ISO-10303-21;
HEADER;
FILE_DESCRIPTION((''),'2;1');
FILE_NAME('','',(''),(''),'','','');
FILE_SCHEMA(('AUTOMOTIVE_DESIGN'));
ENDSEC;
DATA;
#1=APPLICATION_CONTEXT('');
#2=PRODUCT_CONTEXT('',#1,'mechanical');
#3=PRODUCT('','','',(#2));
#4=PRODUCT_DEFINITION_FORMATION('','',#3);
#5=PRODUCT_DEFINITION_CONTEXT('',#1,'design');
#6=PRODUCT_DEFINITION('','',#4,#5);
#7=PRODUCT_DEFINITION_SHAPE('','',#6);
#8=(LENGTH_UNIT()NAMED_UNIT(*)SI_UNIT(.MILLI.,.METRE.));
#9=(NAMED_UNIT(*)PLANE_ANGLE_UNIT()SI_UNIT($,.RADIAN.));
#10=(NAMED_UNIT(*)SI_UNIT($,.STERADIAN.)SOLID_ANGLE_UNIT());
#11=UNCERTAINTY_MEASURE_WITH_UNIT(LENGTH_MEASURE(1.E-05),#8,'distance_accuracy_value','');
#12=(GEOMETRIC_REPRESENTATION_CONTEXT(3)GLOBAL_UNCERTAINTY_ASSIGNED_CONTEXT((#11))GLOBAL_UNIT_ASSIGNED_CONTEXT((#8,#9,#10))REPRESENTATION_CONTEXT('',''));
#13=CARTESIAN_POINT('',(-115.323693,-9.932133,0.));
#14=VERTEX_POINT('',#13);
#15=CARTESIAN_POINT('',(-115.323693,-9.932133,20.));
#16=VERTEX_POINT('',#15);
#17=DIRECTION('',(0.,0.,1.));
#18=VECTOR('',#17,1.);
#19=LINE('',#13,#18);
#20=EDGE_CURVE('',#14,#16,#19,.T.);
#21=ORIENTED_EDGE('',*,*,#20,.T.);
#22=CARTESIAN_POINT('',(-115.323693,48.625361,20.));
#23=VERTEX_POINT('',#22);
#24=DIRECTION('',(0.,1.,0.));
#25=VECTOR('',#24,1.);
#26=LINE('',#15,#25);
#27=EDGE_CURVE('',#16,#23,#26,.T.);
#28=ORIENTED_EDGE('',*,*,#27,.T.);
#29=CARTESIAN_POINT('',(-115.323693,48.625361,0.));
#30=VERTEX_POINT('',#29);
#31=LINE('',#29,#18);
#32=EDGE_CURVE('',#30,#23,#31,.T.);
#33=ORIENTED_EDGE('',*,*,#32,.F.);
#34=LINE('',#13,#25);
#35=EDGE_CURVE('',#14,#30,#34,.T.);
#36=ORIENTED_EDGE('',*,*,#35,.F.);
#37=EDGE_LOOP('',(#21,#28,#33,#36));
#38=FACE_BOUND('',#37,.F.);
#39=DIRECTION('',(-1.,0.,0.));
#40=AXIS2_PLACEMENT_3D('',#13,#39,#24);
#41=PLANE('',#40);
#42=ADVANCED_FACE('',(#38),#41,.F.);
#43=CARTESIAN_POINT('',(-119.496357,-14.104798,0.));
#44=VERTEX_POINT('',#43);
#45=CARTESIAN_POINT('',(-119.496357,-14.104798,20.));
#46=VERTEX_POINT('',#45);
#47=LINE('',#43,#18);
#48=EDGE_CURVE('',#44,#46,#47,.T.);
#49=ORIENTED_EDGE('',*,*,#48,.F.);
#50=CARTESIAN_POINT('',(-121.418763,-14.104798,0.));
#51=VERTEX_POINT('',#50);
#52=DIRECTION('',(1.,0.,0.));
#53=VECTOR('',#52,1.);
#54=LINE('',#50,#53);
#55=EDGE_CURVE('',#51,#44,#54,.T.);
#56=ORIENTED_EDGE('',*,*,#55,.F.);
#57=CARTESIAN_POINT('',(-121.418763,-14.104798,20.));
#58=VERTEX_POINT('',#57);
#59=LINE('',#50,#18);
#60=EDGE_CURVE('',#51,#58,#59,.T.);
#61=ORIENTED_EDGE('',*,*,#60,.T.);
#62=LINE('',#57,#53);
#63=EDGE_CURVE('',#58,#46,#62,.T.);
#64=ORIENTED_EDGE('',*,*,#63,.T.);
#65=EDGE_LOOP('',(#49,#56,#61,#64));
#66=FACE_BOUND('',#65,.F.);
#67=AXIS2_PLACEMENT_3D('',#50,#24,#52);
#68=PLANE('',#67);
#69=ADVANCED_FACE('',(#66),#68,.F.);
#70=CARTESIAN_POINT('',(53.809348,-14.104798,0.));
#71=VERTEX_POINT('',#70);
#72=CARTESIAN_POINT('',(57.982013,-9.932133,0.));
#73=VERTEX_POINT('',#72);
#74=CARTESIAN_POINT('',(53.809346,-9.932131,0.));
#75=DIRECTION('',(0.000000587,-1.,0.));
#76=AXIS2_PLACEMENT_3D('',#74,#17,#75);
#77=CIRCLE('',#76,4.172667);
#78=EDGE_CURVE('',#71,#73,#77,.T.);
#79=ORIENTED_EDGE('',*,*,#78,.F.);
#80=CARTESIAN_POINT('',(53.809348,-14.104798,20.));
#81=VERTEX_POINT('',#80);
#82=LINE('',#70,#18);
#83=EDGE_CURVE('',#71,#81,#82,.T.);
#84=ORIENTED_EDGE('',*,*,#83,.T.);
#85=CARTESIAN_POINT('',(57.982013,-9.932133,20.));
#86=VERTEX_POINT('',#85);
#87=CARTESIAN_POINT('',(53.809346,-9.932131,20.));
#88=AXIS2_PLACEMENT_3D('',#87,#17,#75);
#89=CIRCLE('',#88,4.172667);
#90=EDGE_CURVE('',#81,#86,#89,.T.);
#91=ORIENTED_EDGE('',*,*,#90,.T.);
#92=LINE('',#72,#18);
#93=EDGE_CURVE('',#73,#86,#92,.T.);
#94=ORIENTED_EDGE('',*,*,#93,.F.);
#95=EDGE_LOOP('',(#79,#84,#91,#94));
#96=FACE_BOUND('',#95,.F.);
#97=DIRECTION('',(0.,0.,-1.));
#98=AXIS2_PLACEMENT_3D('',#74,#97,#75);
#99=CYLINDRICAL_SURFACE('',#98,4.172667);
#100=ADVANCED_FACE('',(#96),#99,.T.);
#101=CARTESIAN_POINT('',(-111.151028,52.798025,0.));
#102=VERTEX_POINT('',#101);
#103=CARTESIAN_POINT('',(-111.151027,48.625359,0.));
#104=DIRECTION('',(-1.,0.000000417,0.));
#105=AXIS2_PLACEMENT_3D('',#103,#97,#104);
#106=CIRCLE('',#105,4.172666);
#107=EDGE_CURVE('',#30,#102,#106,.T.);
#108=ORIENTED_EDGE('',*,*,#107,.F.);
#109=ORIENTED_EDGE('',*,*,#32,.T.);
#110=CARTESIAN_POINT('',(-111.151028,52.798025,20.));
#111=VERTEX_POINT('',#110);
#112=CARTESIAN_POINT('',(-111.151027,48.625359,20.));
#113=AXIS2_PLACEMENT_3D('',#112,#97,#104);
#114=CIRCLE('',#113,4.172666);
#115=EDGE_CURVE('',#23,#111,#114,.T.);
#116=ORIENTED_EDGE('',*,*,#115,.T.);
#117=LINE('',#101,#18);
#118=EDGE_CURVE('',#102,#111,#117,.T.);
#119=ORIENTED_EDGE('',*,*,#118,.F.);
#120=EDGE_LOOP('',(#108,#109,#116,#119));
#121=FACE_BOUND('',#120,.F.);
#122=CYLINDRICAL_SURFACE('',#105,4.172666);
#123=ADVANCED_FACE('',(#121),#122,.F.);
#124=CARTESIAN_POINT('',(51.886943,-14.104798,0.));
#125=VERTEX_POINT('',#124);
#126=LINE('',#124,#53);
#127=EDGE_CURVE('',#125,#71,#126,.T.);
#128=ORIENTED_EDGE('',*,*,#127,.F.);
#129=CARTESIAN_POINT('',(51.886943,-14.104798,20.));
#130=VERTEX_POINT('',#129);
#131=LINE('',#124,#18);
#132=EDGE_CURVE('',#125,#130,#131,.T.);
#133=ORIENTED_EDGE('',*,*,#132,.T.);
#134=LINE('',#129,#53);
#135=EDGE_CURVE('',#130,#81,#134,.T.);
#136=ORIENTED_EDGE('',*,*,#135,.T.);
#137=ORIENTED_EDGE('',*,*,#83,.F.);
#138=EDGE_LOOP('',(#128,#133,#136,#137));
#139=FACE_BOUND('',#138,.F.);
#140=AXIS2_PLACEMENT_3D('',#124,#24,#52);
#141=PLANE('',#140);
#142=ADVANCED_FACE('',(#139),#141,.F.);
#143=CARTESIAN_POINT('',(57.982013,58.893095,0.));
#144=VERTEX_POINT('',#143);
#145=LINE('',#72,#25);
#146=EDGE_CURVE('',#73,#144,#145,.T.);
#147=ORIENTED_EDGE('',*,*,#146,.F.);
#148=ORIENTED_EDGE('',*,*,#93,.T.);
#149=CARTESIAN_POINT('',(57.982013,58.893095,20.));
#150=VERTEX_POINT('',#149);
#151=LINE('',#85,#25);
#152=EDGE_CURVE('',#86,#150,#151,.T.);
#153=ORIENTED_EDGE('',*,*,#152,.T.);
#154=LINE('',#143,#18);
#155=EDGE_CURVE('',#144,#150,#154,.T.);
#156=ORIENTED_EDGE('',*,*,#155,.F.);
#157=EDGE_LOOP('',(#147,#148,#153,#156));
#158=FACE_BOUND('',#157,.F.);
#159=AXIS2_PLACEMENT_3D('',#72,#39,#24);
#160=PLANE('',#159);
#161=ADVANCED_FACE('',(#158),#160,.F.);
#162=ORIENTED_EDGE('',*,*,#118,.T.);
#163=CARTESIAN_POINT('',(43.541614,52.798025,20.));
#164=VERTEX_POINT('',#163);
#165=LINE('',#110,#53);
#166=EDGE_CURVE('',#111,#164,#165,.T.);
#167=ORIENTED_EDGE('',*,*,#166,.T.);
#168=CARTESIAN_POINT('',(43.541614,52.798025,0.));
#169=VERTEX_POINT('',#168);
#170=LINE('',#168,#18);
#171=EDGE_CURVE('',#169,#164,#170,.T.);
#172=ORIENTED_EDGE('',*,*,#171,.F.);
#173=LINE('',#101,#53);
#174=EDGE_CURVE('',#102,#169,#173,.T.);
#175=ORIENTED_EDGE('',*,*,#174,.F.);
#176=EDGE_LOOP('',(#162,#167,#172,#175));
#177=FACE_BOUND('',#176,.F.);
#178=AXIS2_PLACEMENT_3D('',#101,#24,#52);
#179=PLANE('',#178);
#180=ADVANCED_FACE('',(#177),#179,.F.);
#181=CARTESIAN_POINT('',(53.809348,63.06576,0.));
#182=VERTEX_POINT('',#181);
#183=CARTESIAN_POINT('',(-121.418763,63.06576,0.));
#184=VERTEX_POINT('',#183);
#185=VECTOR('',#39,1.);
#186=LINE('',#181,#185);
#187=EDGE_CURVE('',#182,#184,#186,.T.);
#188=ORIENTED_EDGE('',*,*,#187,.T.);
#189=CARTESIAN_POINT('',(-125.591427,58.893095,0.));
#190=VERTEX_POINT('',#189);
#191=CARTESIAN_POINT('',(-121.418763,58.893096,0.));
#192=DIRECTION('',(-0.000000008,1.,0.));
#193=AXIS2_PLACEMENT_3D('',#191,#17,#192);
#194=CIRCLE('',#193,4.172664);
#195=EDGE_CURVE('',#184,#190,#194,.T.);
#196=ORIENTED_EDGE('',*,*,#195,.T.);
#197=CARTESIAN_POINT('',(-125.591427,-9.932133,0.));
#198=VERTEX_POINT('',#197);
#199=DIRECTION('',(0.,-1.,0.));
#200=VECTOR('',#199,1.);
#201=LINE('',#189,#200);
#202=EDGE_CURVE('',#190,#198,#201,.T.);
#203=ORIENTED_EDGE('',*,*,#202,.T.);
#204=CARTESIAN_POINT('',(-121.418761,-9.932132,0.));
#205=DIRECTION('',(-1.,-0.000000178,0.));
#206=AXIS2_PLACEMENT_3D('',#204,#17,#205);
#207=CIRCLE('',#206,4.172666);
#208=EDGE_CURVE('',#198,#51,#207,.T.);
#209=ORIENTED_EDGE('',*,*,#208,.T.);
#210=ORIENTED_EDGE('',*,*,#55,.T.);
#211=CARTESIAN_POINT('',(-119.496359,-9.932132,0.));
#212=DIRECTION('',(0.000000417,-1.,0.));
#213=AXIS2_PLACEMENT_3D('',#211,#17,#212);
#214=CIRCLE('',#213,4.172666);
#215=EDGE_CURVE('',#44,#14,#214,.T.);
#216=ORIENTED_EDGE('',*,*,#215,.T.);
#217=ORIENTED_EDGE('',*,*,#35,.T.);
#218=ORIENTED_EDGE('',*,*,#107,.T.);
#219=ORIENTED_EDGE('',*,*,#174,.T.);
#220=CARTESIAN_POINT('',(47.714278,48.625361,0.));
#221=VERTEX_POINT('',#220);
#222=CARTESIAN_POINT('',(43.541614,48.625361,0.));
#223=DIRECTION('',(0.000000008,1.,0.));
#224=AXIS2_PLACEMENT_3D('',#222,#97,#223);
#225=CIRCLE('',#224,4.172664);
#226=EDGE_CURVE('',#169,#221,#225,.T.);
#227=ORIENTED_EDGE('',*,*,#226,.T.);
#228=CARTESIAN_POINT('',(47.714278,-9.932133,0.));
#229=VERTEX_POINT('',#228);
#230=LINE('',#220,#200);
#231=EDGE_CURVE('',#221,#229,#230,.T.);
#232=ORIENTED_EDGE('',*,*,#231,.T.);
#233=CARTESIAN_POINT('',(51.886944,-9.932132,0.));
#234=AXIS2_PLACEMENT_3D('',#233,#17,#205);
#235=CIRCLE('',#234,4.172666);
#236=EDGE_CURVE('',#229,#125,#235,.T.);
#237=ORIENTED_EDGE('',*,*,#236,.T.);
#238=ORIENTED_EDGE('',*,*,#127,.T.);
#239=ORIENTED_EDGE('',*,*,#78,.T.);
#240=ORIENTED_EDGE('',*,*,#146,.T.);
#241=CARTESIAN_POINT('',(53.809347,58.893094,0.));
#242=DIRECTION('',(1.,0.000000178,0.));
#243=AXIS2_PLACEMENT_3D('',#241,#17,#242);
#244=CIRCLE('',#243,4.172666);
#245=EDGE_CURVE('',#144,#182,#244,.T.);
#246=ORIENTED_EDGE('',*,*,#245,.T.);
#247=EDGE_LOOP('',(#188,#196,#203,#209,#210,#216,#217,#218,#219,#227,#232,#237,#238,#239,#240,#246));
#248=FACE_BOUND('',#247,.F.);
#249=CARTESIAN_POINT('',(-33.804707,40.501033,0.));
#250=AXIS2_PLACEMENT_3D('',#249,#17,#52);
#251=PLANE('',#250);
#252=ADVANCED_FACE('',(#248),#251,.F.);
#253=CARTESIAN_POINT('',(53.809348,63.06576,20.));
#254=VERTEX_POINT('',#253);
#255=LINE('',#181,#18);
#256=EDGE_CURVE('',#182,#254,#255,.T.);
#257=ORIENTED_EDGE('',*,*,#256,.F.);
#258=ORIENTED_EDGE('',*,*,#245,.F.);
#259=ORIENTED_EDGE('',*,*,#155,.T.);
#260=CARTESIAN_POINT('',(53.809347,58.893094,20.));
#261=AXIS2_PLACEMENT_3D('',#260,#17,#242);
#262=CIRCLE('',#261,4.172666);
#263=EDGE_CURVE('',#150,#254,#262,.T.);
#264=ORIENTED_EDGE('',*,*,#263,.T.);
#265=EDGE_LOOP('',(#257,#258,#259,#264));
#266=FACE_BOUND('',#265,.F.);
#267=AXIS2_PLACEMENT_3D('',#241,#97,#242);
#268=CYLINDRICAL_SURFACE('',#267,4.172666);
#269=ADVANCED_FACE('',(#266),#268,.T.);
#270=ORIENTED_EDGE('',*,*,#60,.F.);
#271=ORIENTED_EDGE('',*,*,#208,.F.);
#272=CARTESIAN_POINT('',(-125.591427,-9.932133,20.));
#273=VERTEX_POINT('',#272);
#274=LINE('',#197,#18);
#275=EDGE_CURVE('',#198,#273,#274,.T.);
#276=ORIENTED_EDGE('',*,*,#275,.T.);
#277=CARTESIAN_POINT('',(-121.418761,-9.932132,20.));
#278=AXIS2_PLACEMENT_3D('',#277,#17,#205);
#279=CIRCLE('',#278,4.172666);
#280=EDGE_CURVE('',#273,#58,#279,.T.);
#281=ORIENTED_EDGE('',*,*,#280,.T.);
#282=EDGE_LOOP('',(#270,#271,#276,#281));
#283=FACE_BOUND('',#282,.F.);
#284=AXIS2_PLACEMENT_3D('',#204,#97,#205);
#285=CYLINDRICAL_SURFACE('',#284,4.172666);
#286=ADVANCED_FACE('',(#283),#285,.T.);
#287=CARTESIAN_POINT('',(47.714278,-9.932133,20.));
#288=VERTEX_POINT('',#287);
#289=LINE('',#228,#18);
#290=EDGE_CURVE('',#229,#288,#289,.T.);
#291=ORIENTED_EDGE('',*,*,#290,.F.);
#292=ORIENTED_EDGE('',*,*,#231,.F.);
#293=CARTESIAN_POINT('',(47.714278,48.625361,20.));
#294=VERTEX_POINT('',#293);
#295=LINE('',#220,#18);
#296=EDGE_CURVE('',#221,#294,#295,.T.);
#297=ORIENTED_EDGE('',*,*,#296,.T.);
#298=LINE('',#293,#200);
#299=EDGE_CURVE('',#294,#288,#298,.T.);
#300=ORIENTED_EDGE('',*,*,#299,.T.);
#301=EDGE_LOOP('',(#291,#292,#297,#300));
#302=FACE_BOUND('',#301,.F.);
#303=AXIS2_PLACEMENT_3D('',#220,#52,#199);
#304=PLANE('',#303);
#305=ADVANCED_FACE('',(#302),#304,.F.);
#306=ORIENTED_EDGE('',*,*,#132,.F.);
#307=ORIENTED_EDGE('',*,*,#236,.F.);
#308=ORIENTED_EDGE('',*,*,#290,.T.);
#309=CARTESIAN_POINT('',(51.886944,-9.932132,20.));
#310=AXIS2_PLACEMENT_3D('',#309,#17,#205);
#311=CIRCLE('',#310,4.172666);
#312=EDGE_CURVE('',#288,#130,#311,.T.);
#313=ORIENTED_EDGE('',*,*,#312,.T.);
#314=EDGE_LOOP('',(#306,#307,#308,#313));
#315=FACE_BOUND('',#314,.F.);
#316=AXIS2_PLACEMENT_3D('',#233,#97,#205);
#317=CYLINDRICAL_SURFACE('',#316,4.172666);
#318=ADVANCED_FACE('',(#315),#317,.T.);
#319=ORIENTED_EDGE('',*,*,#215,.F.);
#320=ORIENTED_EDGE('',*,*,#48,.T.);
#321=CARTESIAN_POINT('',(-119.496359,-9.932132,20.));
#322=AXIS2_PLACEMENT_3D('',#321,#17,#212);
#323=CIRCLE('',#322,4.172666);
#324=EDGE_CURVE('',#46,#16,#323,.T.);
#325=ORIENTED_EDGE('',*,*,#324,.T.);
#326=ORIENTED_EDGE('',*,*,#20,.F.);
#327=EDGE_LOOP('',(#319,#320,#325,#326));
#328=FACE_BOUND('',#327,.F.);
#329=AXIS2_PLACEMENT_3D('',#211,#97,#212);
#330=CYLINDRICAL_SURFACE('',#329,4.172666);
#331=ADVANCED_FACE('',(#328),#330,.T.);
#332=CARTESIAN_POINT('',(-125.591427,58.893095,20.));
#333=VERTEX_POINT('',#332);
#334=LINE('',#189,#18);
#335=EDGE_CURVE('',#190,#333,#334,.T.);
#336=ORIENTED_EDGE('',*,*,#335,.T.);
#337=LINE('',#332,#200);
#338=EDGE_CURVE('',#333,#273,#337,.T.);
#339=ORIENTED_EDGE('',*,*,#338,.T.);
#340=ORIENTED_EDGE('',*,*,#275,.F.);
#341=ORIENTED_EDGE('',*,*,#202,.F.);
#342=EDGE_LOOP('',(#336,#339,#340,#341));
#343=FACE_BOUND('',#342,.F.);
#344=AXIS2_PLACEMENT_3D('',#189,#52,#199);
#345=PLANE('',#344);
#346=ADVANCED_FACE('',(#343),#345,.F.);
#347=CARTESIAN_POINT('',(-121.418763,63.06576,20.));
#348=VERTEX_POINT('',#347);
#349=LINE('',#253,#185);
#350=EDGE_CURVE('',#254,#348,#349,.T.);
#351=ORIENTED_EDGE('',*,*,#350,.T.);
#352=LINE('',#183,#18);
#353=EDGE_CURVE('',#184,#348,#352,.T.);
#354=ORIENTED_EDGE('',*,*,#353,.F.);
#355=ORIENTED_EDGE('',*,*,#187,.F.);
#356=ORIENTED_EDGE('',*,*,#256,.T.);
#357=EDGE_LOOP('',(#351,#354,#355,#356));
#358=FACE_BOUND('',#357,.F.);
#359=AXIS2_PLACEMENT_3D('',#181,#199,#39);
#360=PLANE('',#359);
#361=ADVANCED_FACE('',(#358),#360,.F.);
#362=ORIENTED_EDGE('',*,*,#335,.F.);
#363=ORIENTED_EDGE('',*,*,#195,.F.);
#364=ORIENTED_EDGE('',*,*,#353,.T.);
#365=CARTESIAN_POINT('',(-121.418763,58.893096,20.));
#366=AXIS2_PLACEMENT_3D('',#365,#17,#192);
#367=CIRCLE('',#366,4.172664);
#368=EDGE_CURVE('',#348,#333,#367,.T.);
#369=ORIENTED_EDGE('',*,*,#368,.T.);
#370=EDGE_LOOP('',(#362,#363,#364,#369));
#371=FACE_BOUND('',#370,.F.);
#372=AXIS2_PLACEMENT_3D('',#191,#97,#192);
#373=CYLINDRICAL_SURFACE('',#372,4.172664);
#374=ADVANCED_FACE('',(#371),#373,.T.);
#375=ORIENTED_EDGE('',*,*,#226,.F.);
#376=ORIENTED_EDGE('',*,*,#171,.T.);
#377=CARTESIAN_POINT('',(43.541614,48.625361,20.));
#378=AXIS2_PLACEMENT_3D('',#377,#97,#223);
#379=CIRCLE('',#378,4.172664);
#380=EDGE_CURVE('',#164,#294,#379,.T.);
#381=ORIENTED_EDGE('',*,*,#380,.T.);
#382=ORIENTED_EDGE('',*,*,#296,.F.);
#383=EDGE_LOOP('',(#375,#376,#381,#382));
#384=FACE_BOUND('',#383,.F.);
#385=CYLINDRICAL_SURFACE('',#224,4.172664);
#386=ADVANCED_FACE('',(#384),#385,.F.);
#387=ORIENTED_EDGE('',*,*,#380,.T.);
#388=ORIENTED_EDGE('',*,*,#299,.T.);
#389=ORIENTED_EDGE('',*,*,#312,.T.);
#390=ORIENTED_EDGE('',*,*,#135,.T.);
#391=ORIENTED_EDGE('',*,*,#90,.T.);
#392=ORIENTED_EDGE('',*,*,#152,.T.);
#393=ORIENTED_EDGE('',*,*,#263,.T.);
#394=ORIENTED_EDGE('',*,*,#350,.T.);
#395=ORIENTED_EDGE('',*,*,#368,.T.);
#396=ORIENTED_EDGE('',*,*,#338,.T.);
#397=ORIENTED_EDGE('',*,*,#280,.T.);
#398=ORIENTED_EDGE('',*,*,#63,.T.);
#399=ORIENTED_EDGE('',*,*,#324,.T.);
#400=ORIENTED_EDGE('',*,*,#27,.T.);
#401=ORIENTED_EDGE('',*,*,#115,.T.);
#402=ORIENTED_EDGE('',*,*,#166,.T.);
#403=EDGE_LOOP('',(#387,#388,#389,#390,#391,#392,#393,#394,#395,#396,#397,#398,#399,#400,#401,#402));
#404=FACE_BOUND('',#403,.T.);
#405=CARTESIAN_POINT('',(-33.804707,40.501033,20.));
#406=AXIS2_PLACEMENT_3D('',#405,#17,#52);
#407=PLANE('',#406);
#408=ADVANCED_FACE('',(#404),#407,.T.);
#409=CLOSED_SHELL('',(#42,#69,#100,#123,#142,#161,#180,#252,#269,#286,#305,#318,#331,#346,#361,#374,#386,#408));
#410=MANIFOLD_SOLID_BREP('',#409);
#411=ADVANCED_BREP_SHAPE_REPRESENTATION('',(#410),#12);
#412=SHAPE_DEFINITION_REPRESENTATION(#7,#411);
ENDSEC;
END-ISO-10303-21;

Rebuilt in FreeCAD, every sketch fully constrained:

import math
import FreeCAD as App
import Part
import Sketcher
Q = App.Units.Quantity

doc = App.newDocument("Part")
params = doc.addObject("Spreadsheet::Sheet", "Params")
for row, (alias, value) in enumerate([
    ("pad1_length", "20 mm"),
], start=1):
    params.set(f"A{row}", alias)
    params.set(f"B{row}", "=" + value)
    params.setAlias(f"B{row}", alias)

body = doc.addObject("PartDesign::Body", "Body")

# Sketch on XY plane
sketch1 = doc.addObject("Sketcher::SketchObject", "Sketch")
body.addObject(sketch1)
sketch1.AttachmentSupport = (doc.XY_Plane, [""])
sketch1.MapMode = "FlatFace"
sketch1.addGeometry(Part.ArcOfCircle(Part.Circle(App.Vector(-111.151027, 48.625359, 0), App.Vector(0, 0, 1), 4.172666), math.radians(90.00001), math.radians(179.999976)), False)
sketch1.addGeometry(Part.LineSegment(App.Vector(-111.151028, 52.798025, 0), App.Vector(43.541614, 52.798025, 0)), False)
sketch1.addGeometry(Part.ArcOfCircle(Part.Circle(App.Vector(43.541614, 48.625361, 0), App.Vector(0, 0, 1), 4.172664), math.radians(0), math.radians(90)), False)
sketch1.addGeometry(Part.LineSegment(App.Vector(47.714278, 48.625361, 0), App.Vector(47.714278, -9.932133, 0)), False)
sketch1.addGeometry(Part.ArcOfCircle(Part.Circle(App.Vector(51.886944, -9.932132, 0), App.Vector(0, 0, 1), 4.172666), math.radians(-179.99999), math.radians(-90.00001)), False)
sketch1.addGeometry(Part.LineSegment(App.Vector(51.886943, -14.104798, 0), App.Vector(53.809348, -14.104798, 0)), False)
sketch1.addGeometry(Part.ArcOfCircle(Part.Circle(App.Vector(53.809346, -9.932131, 0), App.Vector(0, 0, 1), 4.172667), math.radians(-89.999966), math.radians(-0.000034)), False)
sketch1.addGeometry(Part.LineSegment(App.Vector(57.982013, -9.932133, 0), App.Vector(57.982013, 58.893095, 0)), False)
sketch1.addGeometry(Part.ArcOfCircle(Part.Circle(App.Vector(53.809347, 58.893094, 0), App.Vector(0, 0, 1), 4.172666), math.radians(0.00001), math.radians(89.99999)), False)
sketch1.addGeometry(Part.LineSegment(App.Vector(53.809348, 63.06576, 0), App.Vector(-121.418763, 63.06576, 0)), False)
sketch1.addGeometry(Part.ArcOfCircle(Part.Circle(App.Vector(-121.418763, 58.893096, 0), App.Vector(0, 0, 1), 4.172664), math.radians(90), math.radians(180.000013)), False)
sketch1.addGeometry(Part.LineSegment(App.Vector(-125.591427, 58.893095, 0), App.Vector(-125.591427, -9.932133, 0)), False)
sketch1.addGeometry(Part.ArcOfCircle(Part.Circle(App.Vector(-121.418761, -9.932132, 0), App.Vector(0, 0, 1), 4.172666), math.radians(-179.99999), math.radians(-90.000024)), False)
sketch1.addGeometry(Part.LineSegment(App.Vector(-121.418763, -14.104798, 0), App.Vector(-119.496357, -14.104798, 0)), False)
sketch1.addGeometry(Part.ArcOfCircle(Part.Circle(App.Vector(-119.496359, -9.932132, 0), App.Vector(0, 0, 1), 4.172666), math.radians(-89.999976), math.radians(-0.00001)), False)
sketch1.addGeometry(Part.LineSegment(App.Vector(-115.323693, -9.932133, 0), App.Vector(-115.323693, 48.625361, 0)), False)
sketch1.addConstraint(Sketcher.Constraint("Tangent", 0, 1, 1, 1))
sketch1.addConstraint(Sketcher.Constraint("Tangent", 1, 2, 2, 2))
sketch1.addConstraint(Sketcher.Constraint("Tangent", 2, 1, 3, 1))
sketch1.addConstraint(Sketcher.Constraint("Tangent", 3, 2, 4, 1))
sketch1.addConstraint(Sketcher.Constraint("Tangent", 4, 2, 5, 1))
sketch1.addConstraint(Sketcher.Constraint("Tangent", 5, 2, 6, 1))
sketch1.addConstraint(Sketcher.Constraint("Tangent", 6, 2, 7, 1))
sketch1.addConstraint(Sketcher.Constraint("Tangent", 7, 2, 8, 1))
sketch1.addConstraint(Sketcher.Constraint("Tangent", 8, 2, 9, 1))
sketch1.addConstraint(Sketcher.Constraint("Tangent", 9, 2, 10, 1))
sketch1.addConstraint(Sketcher.Constraint("Tangent", 10, 2, 11, 1))
sketch1.addConstraint(Sketcher.Constraint("Tangent", 11, 2, 12, 1))
sketch1.addConstraint(Sketcher.Constraint("Tangent", 12, 2, 13, 1))
sketch1.addConstraint(Sketcher.Constraint("Tangent", 13, 2, 14, 1))
sketch1.addConstraint(Sketcher.Constraint("Tangent", 14, 2, 15, 1))
sketch1.addConstraint(Sketcher.Constraint("Tangent", 15, 2, 0, 2))
sketch1.addConstraint(Sketcher.Constraint("Horizontal", 1))
sketch1.addConstraint(Sketcher.Constraint("Vertical", 3))
sketch1.addConstraint(Sketcher.Constraint("Horizontal", 5))
sketch1.addConstraint(Sketcher.Constraint("Vertical", 7))
sketch1.addConstraint(Sketcher.Constraint("Horizontal", 9))
sketch1.addConstraint(Sketcher.Constraint("Vertical", 11))
sketch1.addConstraint(Sketcher.Constraint("Horizontal", 13))
sketch1.addConstraint(Sketcher.Constraint("Vertical", 15))
sketch1.addConstraint(Sketcher.Constraint("Equal", 0, 2))
sketch1.addConstraint(Sketcher.Constraint("Equal", 2, 4))
sketch1.addConstraint(Sketcher.Constraint("Equal", 4, 6))
sketch1.addConstraint(Sketcher.Constraint("Equal", 6, 8))
sketch1.addConstraint(Sketcher.Constraint("Equal", 8, 10))
sketch1.addConstraint(Sketcher.Constraint("Equal", 10, 12))
sketch1.addConstraint(Sketcher.Constraint("Equal", 12, 14))
sketch1.addConstraint(Sketcher.Constraint("Horizontal", 6, 3, 12, 3))
sketch1.addConstraint(Sketcher.Constraint("Equal", 5, 13))
sketch1.addConstraint(Sketcher.Constraint("Radius", 0, Q("4.172666 mm")))
sketch1.addConstraint(Sketcher.Constraint("DistanceX", 1, 1, 1, 2, Q("154.692642 mm")))
sketch1.addConstraint(Sketcher.Constraint("DistanceX", 9, 2, 9, 1, Q("175.228111 mm")))
sketch1.addConstraint(Sketcher.Constraint("DistanceY", 7, 1, 7, 2, Q("68.825228 mm")))
sketch1.addConstraint(Sketcher.Constraint("DistanceY", 5, 2, -1, 1, Q("14.104798 mm")))
sketch1.addConstraint(Sketcher.Constraint("DistanceY", 2, 1, 8, 2, Q("14.440399 mm")))
sketch1.addConstraint(Sketcher.Constraint("DistanceX", 12, 3, -1, 1, Q("121.418761 mm")))
pad1 = doc.addObject("PartDesign::Pad", "Pad")
body.addObject(pad1)
pad1.Profile = sketch1
pad1.setExpression("Length", "Params.pad1_length")

doc.recompute()
